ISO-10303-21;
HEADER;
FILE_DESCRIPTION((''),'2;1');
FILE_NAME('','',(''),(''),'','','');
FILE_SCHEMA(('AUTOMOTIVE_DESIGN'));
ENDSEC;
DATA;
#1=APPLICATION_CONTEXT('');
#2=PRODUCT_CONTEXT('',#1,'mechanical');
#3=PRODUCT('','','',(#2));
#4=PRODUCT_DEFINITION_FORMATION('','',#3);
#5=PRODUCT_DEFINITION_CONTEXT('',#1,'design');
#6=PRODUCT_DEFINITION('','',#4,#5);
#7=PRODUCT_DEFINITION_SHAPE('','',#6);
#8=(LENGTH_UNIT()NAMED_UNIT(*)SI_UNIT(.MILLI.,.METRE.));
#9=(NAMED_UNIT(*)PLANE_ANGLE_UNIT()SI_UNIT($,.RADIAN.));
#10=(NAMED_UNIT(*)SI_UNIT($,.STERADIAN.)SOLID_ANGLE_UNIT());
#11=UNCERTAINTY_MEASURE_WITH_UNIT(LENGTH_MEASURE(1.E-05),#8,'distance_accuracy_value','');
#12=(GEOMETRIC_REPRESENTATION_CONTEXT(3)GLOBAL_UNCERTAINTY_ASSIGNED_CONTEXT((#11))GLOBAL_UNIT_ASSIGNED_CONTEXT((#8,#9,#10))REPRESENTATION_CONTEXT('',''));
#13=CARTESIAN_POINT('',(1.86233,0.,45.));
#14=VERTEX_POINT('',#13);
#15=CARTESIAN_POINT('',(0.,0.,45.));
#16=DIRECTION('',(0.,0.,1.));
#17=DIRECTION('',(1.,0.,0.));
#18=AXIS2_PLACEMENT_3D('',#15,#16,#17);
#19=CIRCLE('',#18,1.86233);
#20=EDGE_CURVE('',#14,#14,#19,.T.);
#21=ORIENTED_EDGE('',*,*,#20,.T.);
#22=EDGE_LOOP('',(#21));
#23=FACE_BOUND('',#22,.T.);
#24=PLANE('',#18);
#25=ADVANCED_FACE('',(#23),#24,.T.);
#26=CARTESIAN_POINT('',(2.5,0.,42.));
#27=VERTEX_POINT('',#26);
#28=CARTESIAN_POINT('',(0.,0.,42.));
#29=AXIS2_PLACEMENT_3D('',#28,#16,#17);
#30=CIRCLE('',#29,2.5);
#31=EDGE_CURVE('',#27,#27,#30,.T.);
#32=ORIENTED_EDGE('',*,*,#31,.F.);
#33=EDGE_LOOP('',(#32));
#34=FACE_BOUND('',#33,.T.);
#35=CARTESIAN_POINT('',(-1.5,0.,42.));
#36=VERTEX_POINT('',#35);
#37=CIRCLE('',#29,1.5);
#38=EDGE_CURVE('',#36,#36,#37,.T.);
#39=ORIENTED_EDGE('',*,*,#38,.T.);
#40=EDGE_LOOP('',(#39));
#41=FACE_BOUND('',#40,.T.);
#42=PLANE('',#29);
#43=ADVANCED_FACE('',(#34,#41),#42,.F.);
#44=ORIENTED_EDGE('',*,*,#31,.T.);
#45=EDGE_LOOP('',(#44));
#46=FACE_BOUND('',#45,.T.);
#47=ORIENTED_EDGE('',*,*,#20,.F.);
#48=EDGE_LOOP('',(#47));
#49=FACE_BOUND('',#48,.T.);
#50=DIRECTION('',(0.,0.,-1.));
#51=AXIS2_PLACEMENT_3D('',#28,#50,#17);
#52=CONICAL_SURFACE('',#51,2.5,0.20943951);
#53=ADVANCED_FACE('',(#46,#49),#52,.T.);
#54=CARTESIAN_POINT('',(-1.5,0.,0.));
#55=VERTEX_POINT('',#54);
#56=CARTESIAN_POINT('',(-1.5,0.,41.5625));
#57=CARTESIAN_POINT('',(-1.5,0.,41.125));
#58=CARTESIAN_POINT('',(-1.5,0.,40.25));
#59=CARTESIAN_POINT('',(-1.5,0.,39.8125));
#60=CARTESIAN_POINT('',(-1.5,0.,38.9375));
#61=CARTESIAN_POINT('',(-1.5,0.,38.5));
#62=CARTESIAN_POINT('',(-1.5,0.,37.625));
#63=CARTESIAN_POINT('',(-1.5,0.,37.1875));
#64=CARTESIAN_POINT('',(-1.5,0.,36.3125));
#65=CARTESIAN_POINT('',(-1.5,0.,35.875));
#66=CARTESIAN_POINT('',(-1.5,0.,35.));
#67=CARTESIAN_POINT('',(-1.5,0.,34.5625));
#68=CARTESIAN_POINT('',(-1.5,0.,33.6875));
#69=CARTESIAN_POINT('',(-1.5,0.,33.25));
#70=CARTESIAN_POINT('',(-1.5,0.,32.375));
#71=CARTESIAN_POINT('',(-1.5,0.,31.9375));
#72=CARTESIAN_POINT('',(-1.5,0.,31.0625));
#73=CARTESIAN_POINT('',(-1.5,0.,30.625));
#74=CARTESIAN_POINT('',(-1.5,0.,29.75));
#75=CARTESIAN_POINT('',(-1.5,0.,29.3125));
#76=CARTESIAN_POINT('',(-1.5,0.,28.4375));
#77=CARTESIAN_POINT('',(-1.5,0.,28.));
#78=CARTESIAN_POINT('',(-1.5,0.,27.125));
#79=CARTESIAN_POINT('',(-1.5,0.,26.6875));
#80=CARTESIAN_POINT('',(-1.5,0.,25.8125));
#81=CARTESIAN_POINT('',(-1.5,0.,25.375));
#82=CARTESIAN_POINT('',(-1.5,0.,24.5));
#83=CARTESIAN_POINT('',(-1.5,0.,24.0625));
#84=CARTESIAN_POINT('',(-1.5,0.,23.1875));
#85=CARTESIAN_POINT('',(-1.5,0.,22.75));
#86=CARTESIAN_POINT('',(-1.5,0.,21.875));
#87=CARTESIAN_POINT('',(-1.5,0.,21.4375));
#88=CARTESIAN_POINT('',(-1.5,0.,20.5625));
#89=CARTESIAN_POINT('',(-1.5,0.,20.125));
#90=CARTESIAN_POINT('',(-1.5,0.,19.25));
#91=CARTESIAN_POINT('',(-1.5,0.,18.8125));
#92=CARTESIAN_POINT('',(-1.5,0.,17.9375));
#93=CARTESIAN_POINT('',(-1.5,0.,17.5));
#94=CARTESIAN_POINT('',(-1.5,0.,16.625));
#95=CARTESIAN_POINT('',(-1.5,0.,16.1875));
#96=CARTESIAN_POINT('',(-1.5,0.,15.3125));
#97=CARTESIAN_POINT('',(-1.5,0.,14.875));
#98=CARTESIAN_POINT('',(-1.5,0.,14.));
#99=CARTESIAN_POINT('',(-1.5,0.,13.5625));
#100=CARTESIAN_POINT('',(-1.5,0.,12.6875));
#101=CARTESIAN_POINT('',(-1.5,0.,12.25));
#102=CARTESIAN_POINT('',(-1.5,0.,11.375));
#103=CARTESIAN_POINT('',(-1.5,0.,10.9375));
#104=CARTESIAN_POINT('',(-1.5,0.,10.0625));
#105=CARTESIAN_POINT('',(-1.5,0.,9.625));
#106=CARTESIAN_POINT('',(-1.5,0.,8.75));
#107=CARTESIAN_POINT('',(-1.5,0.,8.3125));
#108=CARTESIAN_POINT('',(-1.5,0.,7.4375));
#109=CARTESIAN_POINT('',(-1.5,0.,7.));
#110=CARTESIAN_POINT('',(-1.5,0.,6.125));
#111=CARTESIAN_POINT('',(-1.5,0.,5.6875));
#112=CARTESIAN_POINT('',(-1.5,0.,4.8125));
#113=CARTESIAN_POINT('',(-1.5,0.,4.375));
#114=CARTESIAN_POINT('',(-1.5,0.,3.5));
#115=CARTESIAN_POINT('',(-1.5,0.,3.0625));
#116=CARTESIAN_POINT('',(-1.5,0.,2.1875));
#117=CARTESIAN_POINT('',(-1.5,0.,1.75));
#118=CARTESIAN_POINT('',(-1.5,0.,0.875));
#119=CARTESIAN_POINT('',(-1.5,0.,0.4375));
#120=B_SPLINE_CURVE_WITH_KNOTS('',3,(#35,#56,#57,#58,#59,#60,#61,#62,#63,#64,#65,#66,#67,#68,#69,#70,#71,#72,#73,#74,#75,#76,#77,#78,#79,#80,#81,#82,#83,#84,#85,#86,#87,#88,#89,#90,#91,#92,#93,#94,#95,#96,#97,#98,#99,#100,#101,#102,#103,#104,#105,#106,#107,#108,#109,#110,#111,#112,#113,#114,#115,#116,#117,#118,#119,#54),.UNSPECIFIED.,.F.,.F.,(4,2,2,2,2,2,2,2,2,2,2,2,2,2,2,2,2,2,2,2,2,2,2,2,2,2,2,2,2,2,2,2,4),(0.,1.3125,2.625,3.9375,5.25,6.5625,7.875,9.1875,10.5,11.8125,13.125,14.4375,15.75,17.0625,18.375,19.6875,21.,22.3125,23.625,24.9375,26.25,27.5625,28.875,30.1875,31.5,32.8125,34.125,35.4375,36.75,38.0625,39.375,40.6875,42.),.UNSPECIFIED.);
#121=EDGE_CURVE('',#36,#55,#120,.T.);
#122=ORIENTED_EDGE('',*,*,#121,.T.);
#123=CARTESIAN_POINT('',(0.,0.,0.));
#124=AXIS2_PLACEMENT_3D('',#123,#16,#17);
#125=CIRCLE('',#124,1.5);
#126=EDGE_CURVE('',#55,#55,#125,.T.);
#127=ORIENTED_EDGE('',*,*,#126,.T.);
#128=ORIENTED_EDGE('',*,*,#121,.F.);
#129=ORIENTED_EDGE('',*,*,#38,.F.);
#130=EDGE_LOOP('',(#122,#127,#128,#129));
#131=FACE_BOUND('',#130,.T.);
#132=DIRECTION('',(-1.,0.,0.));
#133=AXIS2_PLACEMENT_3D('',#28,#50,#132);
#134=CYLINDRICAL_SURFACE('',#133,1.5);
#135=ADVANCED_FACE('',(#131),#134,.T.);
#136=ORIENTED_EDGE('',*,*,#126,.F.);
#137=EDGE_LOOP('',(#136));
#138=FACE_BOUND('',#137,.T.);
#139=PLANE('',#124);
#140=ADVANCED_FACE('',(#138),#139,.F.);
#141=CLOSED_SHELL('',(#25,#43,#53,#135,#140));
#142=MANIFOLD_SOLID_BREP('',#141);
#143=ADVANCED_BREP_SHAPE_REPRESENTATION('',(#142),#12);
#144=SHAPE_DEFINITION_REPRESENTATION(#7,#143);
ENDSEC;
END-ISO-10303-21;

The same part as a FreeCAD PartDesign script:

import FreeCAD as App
import Part
import Sketcher

doc = App.newDocument("Part")
body = doc.addObject("PartDesign::Body", "Body")

sketch1 = body.newObject("Sketcher::SketchObject", "Sketch")
sketch1.AttachmentSupport = (doc.getObject("XY_Plane"), [""])
sketch1.MapMode = "FlatFace"
sketch1.addGeometry(Part.Circle(App.Vector(0, 0, 0), App.Vector(0, 0, 1), 1.5), False)
sketch1.addConstraint(Sketcher.Constraint("Coincident", 0, 3, -1, 1))
sketch1.addConstraint(Sketcher.Constraint("Diameter", 0, 3.0))
pad1 = body.newObject("PartDesign::Pad", "Pad")
pad1.Profile = sketch1
pad1.Length = 42

sketch2 = body.newObject("Sketcher::SketchObject", "Sketch001")
sketch2.AttachmentSupport = (doc.getObject("XY_Plane"), [""])
sketch2.MapMode = "FlatFace"
sketch2.AttachmentOffset = App.Placement(App.Vector(0, 0, 42), App.Rotation())
sketch2.addGeometry(Part.Circle(App.Vector(0, 0, 0), App.Vector(0, 0, 1), 2.5), False)
sketch2.addConstraint(Sketcher.Constraint("Coincident", 0, 3, -1, 1))
sketch2.addConstraint(Sketcher.Constraint("Diameter", 0, 5.0))
pad2 = body.newObject("PartDesign::Pad", "Pad001")
pad2.Profile = sketch2
pad2.Length = 3
pad2.TaperAngle = -12

doc.recompute()
